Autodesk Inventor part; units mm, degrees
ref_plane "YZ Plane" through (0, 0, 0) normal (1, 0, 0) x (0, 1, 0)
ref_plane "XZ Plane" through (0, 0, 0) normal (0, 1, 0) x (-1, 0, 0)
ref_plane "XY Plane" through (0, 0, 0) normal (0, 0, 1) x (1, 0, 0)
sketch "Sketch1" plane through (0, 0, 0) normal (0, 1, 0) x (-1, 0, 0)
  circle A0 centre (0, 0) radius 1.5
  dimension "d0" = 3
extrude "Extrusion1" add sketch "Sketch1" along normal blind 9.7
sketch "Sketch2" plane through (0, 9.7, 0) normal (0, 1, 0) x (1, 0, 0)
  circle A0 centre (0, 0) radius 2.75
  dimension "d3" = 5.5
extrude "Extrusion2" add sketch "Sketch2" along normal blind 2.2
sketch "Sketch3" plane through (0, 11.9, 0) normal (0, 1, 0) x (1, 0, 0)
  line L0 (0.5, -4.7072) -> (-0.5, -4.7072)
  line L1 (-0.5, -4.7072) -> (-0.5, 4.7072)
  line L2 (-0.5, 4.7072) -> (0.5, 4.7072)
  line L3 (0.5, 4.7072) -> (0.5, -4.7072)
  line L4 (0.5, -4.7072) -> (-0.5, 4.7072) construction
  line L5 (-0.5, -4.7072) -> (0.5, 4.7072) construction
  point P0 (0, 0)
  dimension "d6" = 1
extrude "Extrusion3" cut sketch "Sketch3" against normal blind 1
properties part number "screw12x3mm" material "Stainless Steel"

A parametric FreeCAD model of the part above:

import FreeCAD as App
import Part
import Sketcher
from FreeCAD import Vector


def add_polygon(sketch, points):
    """Adds a closed chain of lines whose ends are joined by coincident constraints."""
    first, n = sketch.GeometryCount, len(points)
    for a, b in zip(points, points[1:] + points[:1]):
        sketch.addGeometry(Part.LineSegment(App.Vector(*a, 0), App.Vector(*b, 0)), False)
    for i in range(n):
        sketch.addConstraint(Sketcher.Constraint("Coincident", first + i, 2, first + (i + 1) % n, 1))

doc = App.newDocument("Part")
body = doc.addObject("PartDesign::Body", "Body")

sketch1 = body.newObject("Sketcher::SketchObject", "Sketch")
sketch1.AttachmentSupport = (doc.getObject("XZ_Plane"), [""])
sketch1.MapMode = "FlatFace"
sketch1.addGeometry(Part.Circle(Vector(0, 0, 0), Vector(0, 0, 1), 1.5), False)
sketch1.addConstraint([
    Sketcher.Constraint("Coincident", 0, 3, -1, 1),
    Sketcher.Constraint("Diameter", 0, 3.0),
])
pad1 = body.newObject("PartDesign::Pad", "Pad")
pad1.Profile = sketch1
pad1.Length = 9.7
pad1.Reversed = True

sketch2 = body.newObject("Sketcher::SketchObject", "Sketch001")
sketch2.AttachmentSupport = (doc.getObject("XZ_Plane"), [""])
sketch2.MapMode = "FlatFace"
sketch2.AttachmentOffset = App.Placement(Vector(0, 0, -9.7), App.Rotation())
sketch2.addGeometry(Part.Circle(Vector(0, 0, 0), Vector(0, 0, 1), 2.8), False)
sketch2.addConstraint([
    Sketcher.Constraint("Coincident", 0, 3, -1, 1),
    Sketcher.Constraint("Diameter", 0, 5.5),
])
pad2 = body.newObject("PartDesign::Pad", "Pad001")
pad2.Profile = sketch2
pad2.Length = 2.2
pad2.Reversed = True

sketch3 = body.newObject("Sketcher::SketchObject", "Sketch002")
sketch3.AttachmentSupport = (doc.getObject("XZ_Plane"), [""])
sketch3.MapMode = "FlatFace"
sketch3.AttachmentOffset = App.Placement(Vector(0, 0, -11.9), App.Rotation())
add_polygon(sketch3, [(-0.5, 4.7), (0.5, 4.7), (0.5, -4.7), (-0.5, -4.7)])
sketch3.addConstraint([
    Sketcher.Constraint("Horizontal", 0),
    Sketcher.Constraint("Vertical", 1),
    Sketcher.Constraint("Horizontal", 2),
    Sketcher.Constraint("Vertical", 3),
    Sketcher.Constraint("Symmetric", 0, 2, 2, 2, -1, 1),
    Sketcher.Constraint("DistanceX", 0, 1, 0, 2, 1.0),
    Sketcher.Constraint("DistanceY", 1, 2, 1, 1, 9.4144),
])
pocket1 = body.newObject("PartDesign::Pocket", "Pocket")
pocket1.Profile = sketch3
pocket1.Length = 1
pocket1.Reversed = True

doc.recompute()
